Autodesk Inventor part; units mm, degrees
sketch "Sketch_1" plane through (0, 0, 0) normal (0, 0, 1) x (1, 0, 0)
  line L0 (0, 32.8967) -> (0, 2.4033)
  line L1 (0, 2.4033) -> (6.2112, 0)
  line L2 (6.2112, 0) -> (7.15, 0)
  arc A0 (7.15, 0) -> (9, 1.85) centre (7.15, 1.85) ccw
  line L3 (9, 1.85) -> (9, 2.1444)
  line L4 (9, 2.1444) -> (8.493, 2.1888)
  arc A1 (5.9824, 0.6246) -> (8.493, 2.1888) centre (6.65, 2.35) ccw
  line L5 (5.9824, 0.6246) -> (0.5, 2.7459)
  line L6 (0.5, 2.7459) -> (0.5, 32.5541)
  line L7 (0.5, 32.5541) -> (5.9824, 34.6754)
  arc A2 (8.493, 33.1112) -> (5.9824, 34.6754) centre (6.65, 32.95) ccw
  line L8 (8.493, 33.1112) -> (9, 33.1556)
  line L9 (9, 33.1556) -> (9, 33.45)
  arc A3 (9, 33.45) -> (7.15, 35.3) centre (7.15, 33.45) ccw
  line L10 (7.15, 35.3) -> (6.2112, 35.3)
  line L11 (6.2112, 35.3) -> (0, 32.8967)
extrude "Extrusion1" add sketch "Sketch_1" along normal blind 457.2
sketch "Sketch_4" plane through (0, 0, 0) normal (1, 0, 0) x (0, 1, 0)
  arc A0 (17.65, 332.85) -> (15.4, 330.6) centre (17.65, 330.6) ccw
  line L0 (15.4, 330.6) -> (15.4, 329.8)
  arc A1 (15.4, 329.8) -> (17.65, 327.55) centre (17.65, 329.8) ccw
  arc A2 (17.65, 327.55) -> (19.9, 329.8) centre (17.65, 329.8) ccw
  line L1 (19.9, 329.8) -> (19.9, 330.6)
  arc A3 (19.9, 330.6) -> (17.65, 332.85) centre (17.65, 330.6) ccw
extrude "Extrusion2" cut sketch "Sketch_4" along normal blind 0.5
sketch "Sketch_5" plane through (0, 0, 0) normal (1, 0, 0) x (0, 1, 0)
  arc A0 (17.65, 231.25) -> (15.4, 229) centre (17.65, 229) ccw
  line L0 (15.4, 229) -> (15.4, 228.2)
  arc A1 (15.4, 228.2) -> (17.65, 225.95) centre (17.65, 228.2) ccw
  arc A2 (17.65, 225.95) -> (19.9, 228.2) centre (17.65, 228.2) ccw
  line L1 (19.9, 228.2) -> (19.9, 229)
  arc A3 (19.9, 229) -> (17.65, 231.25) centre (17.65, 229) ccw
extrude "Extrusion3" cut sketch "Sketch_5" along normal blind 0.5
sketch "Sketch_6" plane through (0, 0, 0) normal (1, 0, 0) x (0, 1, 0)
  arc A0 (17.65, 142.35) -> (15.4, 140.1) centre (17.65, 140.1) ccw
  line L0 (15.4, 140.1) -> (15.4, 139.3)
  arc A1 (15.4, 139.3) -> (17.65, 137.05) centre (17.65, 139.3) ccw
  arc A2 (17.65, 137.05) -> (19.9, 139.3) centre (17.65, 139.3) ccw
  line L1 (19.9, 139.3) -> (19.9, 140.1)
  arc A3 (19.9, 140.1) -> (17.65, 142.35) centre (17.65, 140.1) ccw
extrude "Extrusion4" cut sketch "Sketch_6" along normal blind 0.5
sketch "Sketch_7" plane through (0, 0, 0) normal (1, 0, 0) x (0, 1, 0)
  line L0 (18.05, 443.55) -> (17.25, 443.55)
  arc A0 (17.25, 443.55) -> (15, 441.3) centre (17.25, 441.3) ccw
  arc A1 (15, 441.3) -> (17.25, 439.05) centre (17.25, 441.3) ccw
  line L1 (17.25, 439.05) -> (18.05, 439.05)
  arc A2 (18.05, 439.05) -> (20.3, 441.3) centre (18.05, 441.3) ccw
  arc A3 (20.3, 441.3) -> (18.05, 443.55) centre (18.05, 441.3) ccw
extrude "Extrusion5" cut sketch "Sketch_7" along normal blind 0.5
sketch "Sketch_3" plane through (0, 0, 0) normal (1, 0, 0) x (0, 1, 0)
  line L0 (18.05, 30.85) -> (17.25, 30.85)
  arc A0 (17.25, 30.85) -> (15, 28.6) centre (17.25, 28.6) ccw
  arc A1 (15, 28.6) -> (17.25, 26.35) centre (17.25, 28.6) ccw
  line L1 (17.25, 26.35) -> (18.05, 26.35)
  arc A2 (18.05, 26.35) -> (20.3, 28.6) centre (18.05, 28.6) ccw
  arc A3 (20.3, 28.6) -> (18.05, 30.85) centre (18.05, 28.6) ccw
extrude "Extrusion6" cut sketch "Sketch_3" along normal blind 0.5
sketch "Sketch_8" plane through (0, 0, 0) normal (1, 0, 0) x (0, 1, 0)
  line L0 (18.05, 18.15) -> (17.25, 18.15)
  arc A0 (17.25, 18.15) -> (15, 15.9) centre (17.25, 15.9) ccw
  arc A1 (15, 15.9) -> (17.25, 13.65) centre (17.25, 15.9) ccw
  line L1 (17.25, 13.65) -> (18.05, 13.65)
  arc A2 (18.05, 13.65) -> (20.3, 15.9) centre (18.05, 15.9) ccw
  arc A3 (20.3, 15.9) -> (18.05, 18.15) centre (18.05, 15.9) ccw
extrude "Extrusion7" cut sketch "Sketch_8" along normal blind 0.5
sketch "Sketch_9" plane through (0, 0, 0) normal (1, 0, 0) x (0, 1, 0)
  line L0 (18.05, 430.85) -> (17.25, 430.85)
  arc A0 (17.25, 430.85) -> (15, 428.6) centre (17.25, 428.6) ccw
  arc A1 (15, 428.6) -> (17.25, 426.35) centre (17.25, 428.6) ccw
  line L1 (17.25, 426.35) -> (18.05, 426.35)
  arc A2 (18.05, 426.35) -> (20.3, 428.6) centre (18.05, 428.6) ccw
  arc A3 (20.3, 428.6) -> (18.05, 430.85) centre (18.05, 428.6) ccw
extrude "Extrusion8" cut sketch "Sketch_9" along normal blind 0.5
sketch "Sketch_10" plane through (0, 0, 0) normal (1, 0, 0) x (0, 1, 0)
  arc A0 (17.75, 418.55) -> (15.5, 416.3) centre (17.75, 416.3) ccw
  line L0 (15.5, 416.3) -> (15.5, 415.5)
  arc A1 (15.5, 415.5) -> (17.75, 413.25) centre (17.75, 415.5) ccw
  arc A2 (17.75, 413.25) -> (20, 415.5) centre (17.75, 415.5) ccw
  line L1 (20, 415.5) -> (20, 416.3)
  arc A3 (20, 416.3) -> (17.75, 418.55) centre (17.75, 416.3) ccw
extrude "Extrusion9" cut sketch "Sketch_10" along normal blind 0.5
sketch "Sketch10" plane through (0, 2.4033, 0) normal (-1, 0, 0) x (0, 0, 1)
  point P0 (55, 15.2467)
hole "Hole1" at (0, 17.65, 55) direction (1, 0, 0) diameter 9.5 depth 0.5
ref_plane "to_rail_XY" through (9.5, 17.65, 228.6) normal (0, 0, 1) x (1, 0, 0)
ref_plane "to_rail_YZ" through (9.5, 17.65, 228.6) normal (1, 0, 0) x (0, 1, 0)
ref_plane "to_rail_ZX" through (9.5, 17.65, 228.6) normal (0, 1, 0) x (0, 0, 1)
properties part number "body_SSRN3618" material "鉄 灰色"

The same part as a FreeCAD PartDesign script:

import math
import FreeCAD as App
import Part
import Sketcher
from FreeCAD import Vector
Q = App.Units.Quantity

doc = App.newDocument("Part")
body = doc.addObject("PartDesign::Body", "Body")

sketch1 = body.newObject("Sketcher::SketchObject", "Sketch")
sketch1.AttachmentSupport = (doc.getObject("XY_Plane"), [""])
sketch1.MapMode = "FlatFace"
sketch1.addGeometry([
    Part.LineSegment(Vector(6.2112, 35.3, 0), Vector(0, 32.8967, 0)),
    Part.LineSegment(Vector(0, 32.8967, 0), Vector(0, 2.4033, 0)),
    Part.LineSegment(Vector(0, 2.4033, 0), Vector(6.2112, 0, 0)),
    Part.LineSegment(Vector(6.2112, 0, 0), Vector(7.15, 0, 0)),
    Part.ArcOfCircle(Part.Circle(Vector(7.15, 1.85, 0), Vector(0, 0, 1), 1.85), math.radians(-90), math.radians(0)),
    Part.LineSegment(Vector(9, 1.85, 0), Vector(9, 2.1444, 0)),
    Part.LineSegment(Vector(9, 2.1444, 0), Vector(8.493, 2.1888, 0)),
    Part.ArcOfCircle(Part.Circle(Vector(6.65, 2.35, 0), Vector(0, 0, 1), 1.850053), math.radians(-111.152689), math.radians(-4.998716)),
    Part.LineSegment(Vector(5.9824, 0.6246, 0), Vector(0.5, 2.7459, 0)),
    Part.LineSegment(Vector(0.5, 2.7459, 0), Vector(0.5, 32.5541, 0)),
    Part.LineSegment(Vector(0.5, 32.5541, 0), Vector(5.9824, 34.6754, 0)),
    Part.ArcOfCircle(Part.Circle(Vector(6.65, 32.95, 0), Vector(0, 0, 1), 1.850036), math.radians(4.998716), math.radians(111.152689)),
    Part.LineSegment(Vector(8.493, 33.1112, 0), Vector(9, 33.1556, 0)),
    Part.LineSegment(Vector(9, 33.1556, 0), Vector(9, 33.45, 0)),
    Part.ArcOfCircle(Part.Circle(Vector(7.15, 33.45, 0), Vector(0, 0, 1), 1.85), math.radians(0), math.radians(90)),
    Part.LineSegment(Vector(7.15, 35.3, 0), Vector(6.2112, 35.3, 0)),
], False)
sketch1.addConstraint([
    Sketcher.Constraint("Coincident", 0, 2, 1, 1),
    Sketcher.Constraint("Coincident", 1, 2, 2, 1),
    Sketcher.Constraint("Coincident", 2, 2, 3, 1),
    Sketcher.Constraint("Tangent", 3, 2, 4, 1),
    Sketcher.Constraint("Tangent", 4, 2, 5, 1),
    Sketcher.Constraint("Coincident", 5, 2, 6, 1),
    Sketcher.Constraint("Coincident", 6, 2, 7, 2),
    Sketcher.Constraint("Tangent", 7, 1, 8, 1),
    Sketcher.Constraint("Coincident", 8, 2, 9, 1),
    Sketcher.Constraint("Coincident", 9, 2, 10, 1),
    Sketcher.Constraint("Tangent", 10, 2, 11, 2),
    Sketcher.Constraint("Coincident", 11, 1, 12, 1),
    Sketcher.Constraint("Coincident", 12, 2, 13, 1),
    Sketcher.Constraint("Tangent", 13, 2, 14, 1),
    Sketcher.Constraint("Tangent", 14, 2, 15, 1),
    Sketcher.Constraint("Coincident", 15, 2, 0, 1),
    Sketcher.Constraint("Vertical", 1),
    Sketcher.Constraint("Horizontal", 3),
    Sketcher.Constraint("Vertical", 5),
    Sketcher.Constraint("Vertical", 9),
    Sketcher.Constraint("Vertical", 13),
    Sketcher.Constraint("Horizontal", 15),
    Sketcher.Constraint("Equal", 4, 7),
    Sketcher.Constraint("Equal", 7, 11),
    Sketcher.Constraint("Equal", 11, 14),
    Sketcher.Constraint("PointOnObject", 0, 2, -2),
    Sketcher.Constraint("PointOnObject", 2, 2, -1),
    Sketcher.Constraint("Parallel", 2, 8),
    Sketcher.Constraint("Parallel", 0, 10),
    Sketcher.Constraint("Vertical", 7, 3, 11, 3),
    Sketcher.Constraint("Vertical", 4, 3, 14, 3),
    Sketcher.Constraint("Vertical", 7, 1, 10, 2),
    Sketcher.Constraint("Vertical", 6, 2, 11, 1),
    Sketcher.Constraint("Vertical", 2, 2, 15, 2),
    Sketcher.Constraint("Equal", 5, 13),
    Sketcher.Constraint("Equal", 6, 12),
    Sketcher.Constraint("Radius", 4, Q("1.85 mm")),
    Sketcher.Constraint("DistanceX", -1, 1, 4, 2, Q("9 mm")),
    Sketcher.Constraint("DistanceX", -1, 1, 8, 2, Q("0.5 mm")),
    Sketcher.Constraint("DistanceY", -1, 1, 14, 2, Q("35.3 mm")),
    Sketcher.Constraint("DistanceX", 7, 3, 4, 3, Q("0.5 mm")),
    Sketcher.Constraint("DistanceY", 4, 3, 7, 3, Q("0.5 mm")),
    Sketcher.Constraint("Distance", 0, Q("6.66 mm")),
    Sketcher.Constraint("Distance", 6, Q("0.509 mm")),
    Sketcher.Constraint("DistanceX", 3, 1, 3, 2, Q("0.9388 mm")),
    Sketcher.Constraint("DistanceX", -1, 1, 6, 2, Q("8.493 mm")),
])
pad1 = body.newObject("PartDesign::Pad", "Pad")
pad1.Profile = sketch1
pad1.Length = 457.2

sketch2 = body.newObject("Sketcher::SketchObject", "Sketch001")
sketch2.AttachmentSupport = (doc.getObject("YZ_Plane"), [""])
sketch2.MapMode = "FlatFace"
sketch2.addGeometry([
    Part.ArcOfCircle(Part.Circle(Vector(17.65, 330.6, 0), Vector(0, 0, 1), 2.25), math.radians(0), math.radians(180)),
    Part.LineSegment(Vector(15.4, 330.6, 0), Vector(15.4, 329.8, 0)),
    Part.ArcOfCircle(Part.Circle(Vector(17.65, 329.8, 0), Vector(0, 0, 1), 2.25), math.radians(180), math.radians(360)),
    Part.LineSegment(Vector(19.9, 329.8, 0), Vector(19.9, 330.6, 0)),
], False)
sketch2.addConstraint([
    Sketcher.Constraint("Tangent", 0, 2, 1, 1),
    Sketcher.Constraint("Tangent", 1, 2, 2, 1),
    Sketcher.Constraint("Tangent", 2, 2, 3, 1),
    Sketcher.Constraint("Tangent", 3, 2, 0, 1),
    Sketcher.Constraint("Vertical", 1),
    Sketcher.Constraint("Vertical", 3),
    Sketcher.Constraint("Radius", 0, Q("2.25 mm")),
    Sketcher.Constraint("DistanceY", 1, 2, 1, 1, Q("0.8 mm")),
    Sketcher.Constraint("DistanceY", -1, 1, 0, 3, Q("330.6 mm")),
    Sketcher.Constraint("DistanceX", -1, 1, 0, 2, Q("15.4 mm")),
])
pocket1 = body.newObject("PartDesign::Pocket", "Pocket")
pocket1.Profile = sketch2
pocket1.Length = 0.5
pocket1.Reversed = True

sketch3 = body.newObject("Sketcher::SketchObject", "Sketch002")
sketch3.AttachmentSupport = (doc.getObject("YZ_Plane"), [""])
sketch3.MapMode = "FlatFace"
sketch3.addGeometry([
    Part.ArcOfCircle(Part.Circle(Vector(17.65, 229, 0), Vector(0, 0, 1), 2.25), math.radians(0), math.radians(180)),
    Part.LineSegment(Vector(15.4, 229, 0), Vector(15.4, 228.2, 0)),
    Part.ArcOfCircle(Part.Circle(Vector(17.65, 228.2, 0), Vector(0, 0, 1), 2.25), math.radians(180), math.radians(360)),
    Part.LineSegment(Vector(19.9, 228.2, 0), Vector(19.9, 229, 0)),
], False)
sketch3.addConstraint([
    Sketcher.Constraint("Tangent", 0, 2, 1, 1),
    Sketcher.Constraint("Tangent", 1, 2, 2, 1),
    Sketcher.Constraint("Tangent", 2, 2, 3, 1),
    Sketcher.Constraint("Tangent", 3, 2, 0, 1),
    Sketcher.Constraint("Vertical", 1),
    Sketcher.Constraint("Vertical", 3),
    Sketcher.Constraint("Radius", 0, Q("2.25 mm")),
    Sketcher.Constraint("DistanceY", 1, 2, 1, 1, Q("0.8 mm")),
    Sketcher.Constraint("DistanceY", -1, 1, 0, 3, Q("229 mm")),
    Sketcher.Constraint("DistanceX", -1, 1, 0, 2, Q("15.4 mm")),
])
pocket2 = body.newObject("PartDesign::Pocket", "Pocket001")
pocket2.Profile = sketch3
pocket2.Length = 0.5
pocket2.Reversed = True

sketch4 = body.newObject("Sketcher::SketchObject", "Sketch003")
sketch4.AttachmentSupport = (doc.getObject("YZ_Plane"), [""])
sketch4.MapMode = "FlatFace"
sketch4.addGeometry([
    Part.ArcOfCircle(Part.Circle(Vector(17.65, 140.1, 0), Vector(0, 0, 1), 2.25), math.radians(0), math.radians(180)),
    Part.LineSegment(Vector(15.4, 140.1, 0), Vector(15.4, 139.3, 0)),
    Part.ArcOfCircle(Part.Circle(Vector(17.65, 139.3, 0), Vector(0, 0, 1), 2.25), math.radians(180), math.radians(360)),
    Part.LineSegment(Vector(19.9, 139.3, 0), Vector(19.9, 140.1, 0)),
], False)
sketch4.addConstraint([
    Sketcher.Constraint("Tangent", 0, 2, 1, 1),
    Sketcher.Constraint("Tangent", 1, 2, 2, 1),
    Sketcher.Constraint("Tangent", 2, 2, 3, 1),
    Sketcher.Constraint("Tangent", 3, 2, 0, 1),
    Sketcher.Constraint("Vertical", 1),
    Sketcher.Constraint("Vertical", 3),
    Sketcher.Constraint("Radius", 0, Q("2.25 mm")),
    Sketcher.Constraint("DistanceY", 1, 2, 1, 1, Q("0.8 mm")),
    Sketcher.Constraint("DistanceY", -1, 1, 0, 3, Q("140.1 mm")),
    Sketcher.Constraint("DistanceX", -1, 1, 0, 2, Q("15.4 mm")),
])
pocket3 = body.newObject("PartDesign::Pocket", "Pocket002")
pocket3.Profile = sketch4
pocket3.Length = 0.5
pocket3.Reversed = True

sketch5 = body.newObject("Sketcher::SketchObject", "Sketch004")
sketch5.AttachmentSupport = (doc.getObject("YZ_Plane"), [""])
sketch5.MapMode = "FlatFace"
sketch5.addGeometry([
    Part.ArcOfCircle(Part.Circle(Vector(18.05, 441.3, 0), Vector(0, 0, 1), 2.25), math.radians(-90), math.radians(90)),
    Part.LineSegment(Vector(18.05, 443.55, 0), Vector(17.25, 443.55, 0)),
    Part.ArcOfCircle(Part.Circle(Vector(17.25, 441.3, 0), Vector(0, 0, 1), 2.25), math.radians(90), math.radians(270)),
    Part.LineSegment(Vector(17.25, 439.05, 0), Vector(18.05, 439.05, 0)),
], False)
sketch5.addConstraint([
    Sketcher.Constraint("Tangent", 0, 2, 1, 1),
    Sketcher.Constraint("Tangent", 1, 2, 2, 1),
    Sketcher.Constraint("Tangent", 2, 2, 3, 1),
    Sketcher.Constraint("Tangent", 3, 2, 0, 1),
    Sketcher.Constraint("Horizontal", 1),
    Sketcher.Constraint("Horizontal", 3),
    Sketcher.Constraint("Radius", 0, Q("2.25 mm")),
    Sketcher.Constraint("DistanceX", 1, 2, 1, 1, Q("0.8 mm")),
    Sketcher.Constraint("DistanceY", -1, 1, 0, 3, Q("441.3 mm")),
    Sketcher.Constraint("DistanceX", -1, 1, 0, 3, Q("18.05 mm")),
])
pocket4 = body.newObject("PartDesign::Pocket", "Pocket003")
pocket4.Profile = sketch5
pocket4.Length = 0.5
pocket4.Reversed = True

sketch6 = body.newObject("Sketcher::SketchObject", "Sketch005")
sketch6.AttachmentSupport = (doc.getObject("YZ_Plane"), [""])
sketch6.MapMode = "FlatFace"
sketch6.addGeometry([
    Part.ArcOfCircle(Part.Circle(Vector(18.05, 28.6, 0), Vector(0, 0, 1), 2.25), math.radians(-90), math.radians(90)),
    Part.LineSegment(Vector(18.05, 30.85, 0), Vector(17.25, 30.85, 0)),
    Part.ArcOfCircle(Part.Circle(Vector(17.25, 28.6, 0), Vector(0, 0, 1), 2.25), math.radians(90), math.radians(270)),
    Part.LineSegment(Vector(17.25, 26.35, 0), Vector(18.05, 26.35, 0)),
], False)
sketch6.addConstraint([
    Sketcher.Constraint("Tangent", 0, 2, 1, 1),
    Sketcher.Constraint("Tangent", 1, 2, 2, 1),
    Sketcher.Constraint("Tangent", 2, 2, 3, 1),
    Sketcher.Constraint("Tangent", 3, 2, 0, 1),
    Sketcher.Constraint("Horizontal", 1),
    Sketcher.Constraint("Horizontal", 3),
    Sketcher.Constraint("Radius", 0, Q("2.25 mm")),
    Sketcher.Constraint("DistanceX", 1, 2, 1, 1, Q("0.8 mm")),
    Sketcher.Constraint("DistanceY", -1, 1, 0, 3, Q("28.6 mm")),
    Sketcher.Constraint("DistanceX", -1, 1, 0, 3, Q("18.05 mm")),
])
pocket5 = body.newObject("PartDesign::Pocket", "Pocket004")
pocket5.Profile = sketch6
pocket5.Length = 0.5
pocket5.Reversed = True

sketch7 = body.newObject("Sketcher::SketchObject", "Sketch006")
sketch7.AttachmentSupport = (doc.getObject("YZ_Plane"), [""])
sketch7.MapMode = "FlatFace"
sketch7.addGeometry([
    Part.ArcOfCircle(Part.Circle(Vector(18.05, 15.9, 0), Vector(0, 0, 1), 2.25), math.radians(-90), math.radians(90)),
    Part.LineSegment(Vector(18.05, 18.15, 0), Vector(17.25, 18.15, 0)),
    Part.ArcOfCircle(Part.Circle(Vector(17.25, 15.9, 0), Vector(0, 0, 1), 2.25), math.radians(90), math.radians(270)),
    Part.LineSegment(Vector(17.25, 13.65, 0), Vector(18.05, 13.65, 0)),
], False)
sketch7.addConstraint([
    Sketcher.Constraint("Tangent", 0, 2, 1, 1),
    Sketcher.Constraint("Tangent", 1, 2, 2, 1),
    Sketcher.Constraint("Tangent", 2, 2, 3, 1),
    Sketcher.Constraint("Tangent", 3, 2, 0, 1),
    Sketcher.Constraint("Horizontal", 1),
    Sketcher.Constraint("Horizontal", 3),
    Sketcher.Constraint("Radius", 0, Q("2.25 mm")),
    Sketcher.Constraint("DistanceX", 1, 2, 1, 1, Q("0.8 mm")),
    Sketcher.Constraint("DistanceY", -1, 1, 0, 3, Q("15.9 mm")),
    Sketcher.Constraint("DistanceX", -1, 1, 0, 3, Q("18.05 mm")),
])
pocket6 = body.newObject("PartDesign::Pocket", "Pocket005")
pocket6.Profile = sketch7
pocket6.Length = 0.5
pocket6.Reversed = True

sketch8 = body.newObject("Sketcher::SketchObject", "Sketch007")
sketch8.AttachmentSupport = (doc.getObject("YZ_Plane"), [""])
sketch8.MapMode = "FlatFace"
sketch8.addGeometry([
    Part.ArcOfCircle(Part.Circle(Vector(18.05, 428.6, 0), Vector(0, 0, 1), 2.25), math.radians(-90), math.radians(90)),
    Part.LineSegment(Vector(18.05, 430.85, 0), Vector(17.25, 430.85, 0)),
    Part.ArcOfCircle(Part.Circle(Vector(17.25, 428.6, 0), Vector(0, 0, 1), 2.25), math.radians(90), math.radians(270)),
    Part.LineSegment(Vector(17.25, 426.35, 0), Vector(18.05, 426.35, 0)),
], False)
sketch8.addConstraint([
    Sketcher.Constraint("Tangent", 0, 2, 1, 1),
    Sketcher.Constraint("Tangent", 1, 2, 2, 1),
    Sketcher.Constraint("Tangent", 2, 2, 3, 1),
    Sketcher.Constraint("Tangent", 3, 2, 0, 1),
    Sketcher.Constraint("Horizontal", 1),
    Sketcher.Constraint("Horizontal", 3),
    Sketcher.Constraint("Radius", 0, Q("2.25 mm")),
    Sketcher.Constraint("DistanceX", 1, 2, 1, 1, Q("0.8 mm")),
    Sketcher.Constraint("DistanceY", -1, 1, 0, 3, Q("428.6 mm")),
    Sketcher.Constraint("DistanceX", -1, 1, 0, 3, Q("18.05 mm")),
])
pocket7 = body.newObject("PartDesign::Pocket", "Pocket006")
pocket7.Profile = sketch8
pocket7.Length = 0.5
pocket7.Reversed = True

sketch9 = body.newObject("Sketcher::SketchObject", "Sketch008")
sketch9.AttachmentSupport = (doc.getObject("YZ_Plane"), [""])
sketch9.MapMode = "FlatFace"
sketch9.addGeometry([
    Part.ArcOfCircle(Part.Circle(Vector(17.75, 416.3, 0), Vector(0, 0, 1), 2.25), math.radians(0), math.radians(180)),
    Part.LineSegment(Vector(15.5, 416.3, 0), Vector(15.5, 415.5, 0)),
    Part.ArcOfCircle(Part.Circle(Vector(17.75, 415.5, 0), Vector(0, 0, 1), 2.25), math.radians(180), math.radians(360)),
    Part.LineSegment(Vector(20, 415.5, 0), Vector(20, 416.3, 0)),
], False)
sketch9.addConstraint([
    Sketcher.Constraint("Tangent", 0, 2, 1, 1),
    Sketcher.Constraint("Tangent", 1, 2, 2, 1),
    Sketcher.Constraint("Tangent", 2, 2, 3, 1),
    Sketcher.Constraint("Tangent", 3, 2, 0, 1),
    Sketcher.Constraint("Vertical", 1),
    Sketcher.Constraint("Vertical", 3),
    Sketcher.Constraint("Radius", 0, Q("2.25 mm")),
    Sketcher.Constraint("DistanceY", 1, 2, 1, 1, Q("0.8 mm")),
    Sketcher.Constraint("DistanceX", -1, 1, 2, 2, Q("20 mm")),
    Sketcher.Constraint("DistanceY", -1, 1, 0, 3, Q("416.3 mm")),
])
pocket8 = body.newObject("PartDesign::Pocket", "Pocket007")
pocket8.Profile = sketch9
pocket8.Length = 0.5
pocket8.Reversed = True

sketch10 = body.newObject("Sketcher::SketchObject", "Sketch009")
sketch10.AttachmentSupport = (doc.getObject("YZ_Plane"), [""])
sketch10.MapMode = "FlatFace"
sketch10.addGeometry(Part.Circle(Vector(17.65, 55, 0), Vector(0, 0, 1), 4.75), False)
sketch10.addConstraint([
    Sketcher.Constraint("Diameter", 0, Q("9.5 mm")),
    Sketcher.Constraint("DistanceY", -1, 1, 0, 3, Q("55 mm")),
    Sketcher.Constraint("DistanceX", -1, 1, 0, 3, Q("17.65 mm")),
])
doc.recompute()
hole = body.newObject("PartDesign::Hole", "Hole")
hole.Profile = sketch10
hole.ThreadType = "None"
hole.Diameter = 9.5
hole.DepthType = "Dimension"
hole.Depth = 0.5
hole.DrillPoint = "Flat"
hole.Reversed = True

doc.recompute()
